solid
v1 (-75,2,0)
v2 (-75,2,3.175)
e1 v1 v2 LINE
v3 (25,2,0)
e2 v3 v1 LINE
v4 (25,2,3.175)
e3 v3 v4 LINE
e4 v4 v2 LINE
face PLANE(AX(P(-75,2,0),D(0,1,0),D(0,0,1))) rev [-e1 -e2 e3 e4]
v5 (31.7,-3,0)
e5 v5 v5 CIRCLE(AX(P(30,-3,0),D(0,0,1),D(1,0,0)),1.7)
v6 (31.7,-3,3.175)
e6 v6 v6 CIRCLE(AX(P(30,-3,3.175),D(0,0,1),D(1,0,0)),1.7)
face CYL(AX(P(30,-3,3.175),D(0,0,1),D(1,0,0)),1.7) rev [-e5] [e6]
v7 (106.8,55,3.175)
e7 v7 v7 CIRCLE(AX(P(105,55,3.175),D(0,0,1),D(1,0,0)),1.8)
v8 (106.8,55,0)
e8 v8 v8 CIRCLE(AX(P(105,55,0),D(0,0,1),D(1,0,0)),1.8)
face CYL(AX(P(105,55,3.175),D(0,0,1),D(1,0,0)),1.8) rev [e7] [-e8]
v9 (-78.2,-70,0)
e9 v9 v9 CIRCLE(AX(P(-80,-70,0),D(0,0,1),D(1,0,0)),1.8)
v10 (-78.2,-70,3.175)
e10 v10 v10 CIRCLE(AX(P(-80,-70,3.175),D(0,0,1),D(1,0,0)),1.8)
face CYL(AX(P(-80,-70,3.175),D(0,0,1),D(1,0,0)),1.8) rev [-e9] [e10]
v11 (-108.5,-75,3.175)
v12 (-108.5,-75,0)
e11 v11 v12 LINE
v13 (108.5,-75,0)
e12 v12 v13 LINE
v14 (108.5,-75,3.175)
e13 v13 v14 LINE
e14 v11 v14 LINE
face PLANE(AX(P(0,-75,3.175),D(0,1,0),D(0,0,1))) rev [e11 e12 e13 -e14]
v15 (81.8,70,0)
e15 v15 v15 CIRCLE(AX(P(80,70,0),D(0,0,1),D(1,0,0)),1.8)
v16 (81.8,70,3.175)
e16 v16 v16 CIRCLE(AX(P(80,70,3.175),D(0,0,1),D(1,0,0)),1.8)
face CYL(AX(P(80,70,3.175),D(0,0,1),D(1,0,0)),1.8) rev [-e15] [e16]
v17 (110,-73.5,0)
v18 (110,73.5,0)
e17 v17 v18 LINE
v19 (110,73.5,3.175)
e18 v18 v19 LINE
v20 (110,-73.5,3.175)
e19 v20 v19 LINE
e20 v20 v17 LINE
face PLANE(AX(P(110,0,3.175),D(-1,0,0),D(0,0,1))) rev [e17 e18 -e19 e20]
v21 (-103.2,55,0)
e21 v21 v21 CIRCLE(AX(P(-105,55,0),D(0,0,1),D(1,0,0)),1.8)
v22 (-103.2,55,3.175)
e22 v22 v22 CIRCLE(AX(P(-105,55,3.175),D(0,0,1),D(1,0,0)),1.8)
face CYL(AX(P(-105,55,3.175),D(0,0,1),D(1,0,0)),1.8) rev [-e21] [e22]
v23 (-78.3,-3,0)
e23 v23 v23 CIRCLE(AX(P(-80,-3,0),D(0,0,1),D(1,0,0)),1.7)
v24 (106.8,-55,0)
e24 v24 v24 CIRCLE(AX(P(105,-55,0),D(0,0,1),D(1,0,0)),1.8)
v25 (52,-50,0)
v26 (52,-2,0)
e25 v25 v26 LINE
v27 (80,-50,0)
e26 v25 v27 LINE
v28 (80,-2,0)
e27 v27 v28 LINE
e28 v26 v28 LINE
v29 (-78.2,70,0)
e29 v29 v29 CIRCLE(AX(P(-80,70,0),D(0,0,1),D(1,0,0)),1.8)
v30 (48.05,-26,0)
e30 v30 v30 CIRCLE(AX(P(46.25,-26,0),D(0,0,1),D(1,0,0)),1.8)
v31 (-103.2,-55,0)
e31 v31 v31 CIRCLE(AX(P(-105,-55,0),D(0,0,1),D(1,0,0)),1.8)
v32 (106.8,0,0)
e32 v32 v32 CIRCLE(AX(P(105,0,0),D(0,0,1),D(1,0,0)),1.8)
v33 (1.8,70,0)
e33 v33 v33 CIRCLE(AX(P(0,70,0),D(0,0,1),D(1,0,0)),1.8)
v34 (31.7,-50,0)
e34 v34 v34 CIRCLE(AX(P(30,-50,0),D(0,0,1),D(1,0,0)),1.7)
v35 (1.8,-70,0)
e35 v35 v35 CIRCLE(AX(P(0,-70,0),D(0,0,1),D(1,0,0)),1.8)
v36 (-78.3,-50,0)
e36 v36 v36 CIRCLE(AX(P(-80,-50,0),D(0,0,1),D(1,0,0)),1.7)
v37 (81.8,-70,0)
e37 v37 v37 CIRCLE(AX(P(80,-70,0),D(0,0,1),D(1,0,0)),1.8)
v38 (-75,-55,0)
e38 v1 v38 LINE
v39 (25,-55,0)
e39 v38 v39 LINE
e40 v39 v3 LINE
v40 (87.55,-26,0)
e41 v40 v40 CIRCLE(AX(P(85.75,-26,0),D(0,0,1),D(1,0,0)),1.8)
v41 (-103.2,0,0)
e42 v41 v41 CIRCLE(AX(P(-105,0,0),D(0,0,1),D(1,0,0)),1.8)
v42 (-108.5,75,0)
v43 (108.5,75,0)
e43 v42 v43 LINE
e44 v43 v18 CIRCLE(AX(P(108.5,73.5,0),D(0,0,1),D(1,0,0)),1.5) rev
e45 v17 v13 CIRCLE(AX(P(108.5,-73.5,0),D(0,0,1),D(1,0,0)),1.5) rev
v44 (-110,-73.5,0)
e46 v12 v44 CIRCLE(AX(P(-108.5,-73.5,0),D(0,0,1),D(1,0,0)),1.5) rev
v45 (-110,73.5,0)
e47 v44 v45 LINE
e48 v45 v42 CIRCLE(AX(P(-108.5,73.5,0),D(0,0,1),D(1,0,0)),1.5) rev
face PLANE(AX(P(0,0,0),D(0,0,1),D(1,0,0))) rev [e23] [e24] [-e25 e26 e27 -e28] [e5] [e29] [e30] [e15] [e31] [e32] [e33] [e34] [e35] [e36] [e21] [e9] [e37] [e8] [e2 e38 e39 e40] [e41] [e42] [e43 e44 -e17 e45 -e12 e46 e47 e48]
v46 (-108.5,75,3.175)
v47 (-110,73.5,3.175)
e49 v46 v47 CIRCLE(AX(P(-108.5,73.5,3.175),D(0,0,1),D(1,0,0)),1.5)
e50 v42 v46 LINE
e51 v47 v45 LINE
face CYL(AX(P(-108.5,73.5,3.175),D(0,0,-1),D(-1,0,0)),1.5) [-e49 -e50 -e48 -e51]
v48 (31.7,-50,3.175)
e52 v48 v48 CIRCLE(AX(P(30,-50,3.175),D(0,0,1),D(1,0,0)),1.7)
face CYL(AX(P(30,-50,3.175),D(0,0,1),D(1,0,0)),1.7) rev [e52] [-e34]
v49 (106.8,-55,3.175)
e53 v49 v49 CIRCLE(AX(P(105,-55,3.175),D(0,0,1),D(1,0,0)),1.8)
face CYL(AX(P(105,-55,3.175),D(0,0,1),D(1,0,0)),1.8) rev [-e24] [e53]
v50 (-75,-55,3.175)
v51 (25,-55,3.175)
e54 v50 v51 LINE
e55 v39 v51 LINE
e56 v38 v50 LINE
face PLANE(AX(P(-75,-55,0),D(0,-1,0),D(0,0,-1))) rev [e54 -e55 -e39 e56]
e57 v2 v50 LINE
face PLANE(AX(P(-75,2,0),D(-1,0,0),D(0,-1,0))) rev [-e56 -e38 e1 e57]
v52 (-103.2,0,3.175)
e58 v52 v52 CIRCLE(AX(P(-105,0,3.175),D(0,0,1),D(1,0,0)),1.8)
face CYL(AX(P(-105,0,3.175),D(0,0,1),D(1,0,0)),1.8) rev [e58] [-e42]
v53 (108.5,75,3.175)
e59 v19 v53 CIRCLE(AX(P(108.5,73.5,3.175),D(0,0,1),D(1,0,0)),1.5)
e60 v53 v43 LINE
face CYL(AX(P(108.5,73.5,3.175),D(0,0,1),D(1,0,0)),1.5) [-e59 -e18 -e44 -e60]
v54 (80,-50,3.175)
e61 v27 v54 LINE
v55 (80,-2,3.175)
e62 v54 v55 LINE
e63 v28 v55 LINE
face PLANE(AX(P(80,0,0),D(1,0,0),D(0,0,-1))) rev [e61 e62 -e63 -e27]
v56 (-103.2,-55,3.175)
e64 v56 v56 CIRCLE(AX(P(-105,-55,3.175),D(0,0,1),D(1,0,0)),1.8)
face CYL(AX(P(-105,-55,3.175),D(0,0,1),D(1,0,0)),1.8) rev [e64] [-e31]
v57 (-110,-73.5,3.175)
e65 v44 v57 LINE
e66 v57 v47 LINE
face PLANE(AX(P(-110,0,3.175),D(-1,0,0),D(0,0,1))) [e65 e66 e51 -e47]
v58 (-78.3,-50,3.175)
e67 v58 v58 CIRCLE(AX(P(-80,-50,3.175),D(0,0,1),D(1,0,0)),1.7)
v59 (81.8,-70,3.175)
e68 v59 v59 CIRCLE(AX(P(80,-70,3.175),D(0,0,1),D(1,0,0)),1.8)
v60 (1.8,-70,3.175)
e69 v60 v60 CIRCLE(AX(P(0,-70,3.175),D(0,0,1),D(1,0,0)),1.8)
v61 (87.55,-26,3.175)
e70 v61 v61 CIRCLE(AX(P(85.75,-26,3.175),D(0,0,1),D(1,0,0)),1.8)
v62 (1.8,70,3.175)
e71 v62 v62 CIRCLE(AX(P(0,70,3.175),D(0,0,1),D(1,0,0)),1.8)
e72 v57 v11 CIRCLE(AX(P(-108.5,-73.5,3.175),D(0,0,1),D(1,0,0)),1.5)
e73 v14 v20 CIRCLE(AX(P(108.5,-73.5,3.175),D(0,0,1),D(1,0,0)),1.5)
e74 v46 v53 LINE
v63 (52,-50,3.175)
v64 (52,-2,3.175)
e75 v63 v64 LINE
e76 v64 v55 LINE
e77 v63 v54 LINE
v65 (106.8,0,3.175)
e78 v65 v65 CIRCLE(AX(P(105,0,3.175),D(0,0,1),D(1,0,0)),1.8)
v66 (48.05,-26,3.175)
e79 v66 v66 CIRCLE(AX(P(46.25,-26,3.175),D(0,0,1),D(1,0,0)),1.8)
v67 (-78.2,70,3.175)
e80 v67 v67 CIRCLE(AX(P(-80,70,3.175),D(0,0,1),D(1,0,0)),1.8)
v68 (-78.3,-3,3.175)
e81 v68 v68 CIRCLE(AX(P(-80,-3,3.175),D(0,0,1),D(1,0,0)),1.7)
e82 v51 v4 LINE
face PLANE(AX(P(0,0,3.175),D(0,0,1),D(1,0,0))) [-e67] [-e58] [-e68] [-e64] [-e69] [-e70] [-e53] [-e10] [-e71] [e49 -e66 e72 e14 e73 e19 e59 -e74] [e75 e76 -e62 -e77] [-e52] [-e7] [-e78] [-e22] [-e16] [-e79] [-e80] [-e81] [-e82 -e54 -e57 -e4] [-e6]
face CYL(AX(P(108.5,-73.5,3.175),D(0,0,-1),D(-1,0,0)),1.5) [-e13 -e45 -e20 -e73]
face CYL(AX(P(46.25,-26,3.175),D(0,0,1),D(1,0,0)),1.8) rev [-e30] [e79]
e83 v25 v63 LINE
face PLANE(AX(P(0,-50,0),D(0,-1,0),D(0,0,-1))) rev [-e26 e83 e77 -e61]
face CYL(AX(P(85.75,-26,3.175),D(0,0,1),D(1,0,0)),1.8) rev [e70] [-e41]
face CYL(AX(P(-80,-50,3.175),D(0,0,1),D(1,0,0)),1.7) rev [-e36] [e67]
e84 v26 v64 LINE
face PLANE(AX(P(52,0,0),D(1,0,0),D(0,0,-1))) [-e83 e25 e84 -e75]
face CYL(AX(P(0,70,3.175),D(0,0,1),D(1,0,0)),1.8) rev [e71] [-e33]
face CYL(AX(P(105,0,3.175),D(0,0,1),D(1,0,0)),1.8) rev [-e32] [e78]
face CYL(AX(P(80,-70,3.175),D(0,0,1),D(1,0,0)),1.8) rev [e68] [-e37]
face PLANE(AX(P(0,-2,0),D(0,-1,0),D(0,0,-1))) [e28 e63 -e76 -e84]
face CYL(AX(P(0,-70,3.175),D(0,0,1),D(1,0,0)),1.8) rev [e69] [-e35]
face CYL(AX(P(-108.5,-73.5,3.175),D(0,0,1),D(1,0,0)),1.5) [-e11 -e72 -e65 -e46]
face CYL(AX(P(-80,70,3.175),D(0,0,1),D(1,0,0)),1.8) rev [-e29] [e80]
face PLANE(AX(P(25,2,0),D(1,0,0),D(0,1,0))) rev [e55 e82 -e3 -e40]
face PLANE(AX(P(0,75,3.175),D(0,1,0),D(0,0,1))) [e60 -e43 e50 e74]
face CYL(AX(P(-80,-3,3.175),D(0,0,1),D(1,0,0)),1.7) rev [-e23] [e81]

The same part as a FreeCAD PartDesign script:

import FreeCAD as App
import Part
import Sketcher

V = App.Vector


def edges_at(feature, points):
    """Names of the edges that pass closest to the given points."""
    edges = feature.Shape.Edges
    near = lambda p: min(range(len(edges)), key=lambda i: edges[i].distToShape(Part.Vertex(*p))[0])
    return sorted({f"Edge{near(p) + 1}" for p in points})

doc = App.newDocument("Part")
body = doc.addObject("PartDesign::Body", "Body")

# Sketch on XY plane
sketch1 = body.newObject("Sketcher::SketchObject", "Sketch")
sketch1.AttachmentSupport = (doc.getObject("XY_Plane"), [""])
sketch1.MapMode = "FlatFace"
sketch1.addGeometry(Part.LineSegment(V(-110, 75, 0), V(-110, -75, 0)), False)
sketch1.addGeometry(Part.LineSegment(V(-110, -75, 0), V(110, -75, 0)), False)
sketch1.addGeometry(Part.LineSegment(V(110, -75, 0), V(110, 75, 0)), False)
sketch1.addGeometry(Part.LineSegment(V(110, 75, 0), V(-110, 75, 0)), False)
sketch1.addConstraint(Sketcher.Constraint("Coincident", 0, 2, 1, 1))
sketch1.addConstraint(Sketcher.Constraint("Coincident", 1, 2, 2, 1))
sketch1.addConstraint(Sketcher.Constraint("Coincident", 2, 2, 3, 1))
sketch1.addConstraint(Sketcher.Constraint("Coincident", 3, 2, 0, 1))
sketch1.addConstraint(Sketcher.Constraint("Vertical", 0))
sketch1.addConstraint(Sketcher.Constraint("Horizontal", 1))
sketch1.addConstraint(Sketcher.Constraint("Vertical", 2))
sketch1.addConstraint(Sketcher.Constraint("Horizontal", 3))
sketch1.addConstraint(Sketcher.Constraint("Symmetric", 0, 2, 2, 2, -1, 1))
sketch1.addConstraint(Sketcher.Constraint("DistanceX", 1, 1, 1, 2, 220.0))
sketch1.addConstraint(Sketcher.Constraint("DistanceY", 0, 2, 0, 1, 150.0))
pad1 = body.newObject("PartDesign::Pad", "Pad")
pad1.Profile = sketch1
pad1.Length = 3.175

# Sketch on XY plane
sketch2 = body.newObject("Sketcher::SketchObject", "Sketch001")
sketch2.AttachmentSupport = (doc.getObject("XY_Plane"), [""])
sketch2.MapMode = "FlatFace"
sketch2.AttachmentOffset = App.Placement(V(0, 0, 3.175), App.Rotation())
sketch2.addGeometry(Part.Circle(V(0, 0, 0), V(0, 0, 1), 1.8), False)
sketch2.addGeometry(Part.Circle(V(-80, 70, 0), V(0, 0, 1), 1.8), False)
sketch2.addGeometry(Part.Circle(V(80, 70, 0), V(0, 0, 1), 1.8), False)
sketch2.addGeometry(Part.Circle(V(0, 70, 0), V(0, 0, 1), 1.8), False)
sketch2.addGeometry(Part.Circle(V(-105, 55, 0), V(0, 0, 1), 1.8), False)
sketch2.addGeometry(Part.Circle(V(-105, 0, 0), V(0, 0, 1), 1.8), False)
sketch2.addGeometry(Part.Circle(V(-105, -55, 0), V(0, 0, 1), 1.8), False)
sketch2.addGeometry(Part.Circle(V(-80, -70, 0), V(0, 0, 1), 1.8), False)
sketch2.addGeometry(Part.Circle(V(0, -70, 0), V(0, 0, 1), 1.8), False)
sketch2.addGeometry(Part.Circle(V(80, -70, 0), V(0, 0, 1), 1.8), False)
sketch2.addGeometry(Part.Circle(V(105, -55, 0), V(0, 0, 1), 1.8), False)
sketch2.addGeometry(Part.Circle(V(105, 0, 0), V(0, 0, 1), 1.8), False)
sketch2.addGeometry(Part.Circle(V(105, 55, 0), V(0, 0, 1), 1.8), False)
sketch2.addConstraint(Sketcher.Constraint("Coincident", 0, 3, -1, 1))
sketch2.addConstraint(Sketcher.Constraint("Equal", 0, 1))
sketch2.addConstraint(Sketcher.Constraint("Equal", 1, 2))
sketch2.addConstraint(Sketcher.Constraint("Equal", 2, 3))
sketch2.addConstraint(Sketcher.Constraint("Equal", 3, 4))
sketch2.addConstraint(Sketcher.Constraint("Equal", 4, 5))
sketch2.addConstraint(Sketcher.Constraint("Equal", 5, 6))
sketch2.addConstraint(Sketcher.Constraint("Equal", 6, 7))
sketch2.addConstraint(Sketcher.Constraint("Equal", 7, 8))
sketch2.addConstraint(Sketcher.Constraint("Equal", 8, 9))
sketch2.addConstraint(Sketcher.Constraint("Equal", 9, 10))
sketch2.addConstraint(Sketcher.Constraint("Equal", 10, 11))
sketch2.addConstraint(Sketcher.Constraint("Equal", 11, 12))
sketch2.addConstraint(Sketcher.Constraint("Symmetric", 2, 3, 7, 3, -1, 1))
sketch2.addConstraint(Sketcher.Constraint("Symmetric", 3, 3, 8, 3, -1, 1))
sketch2.addConstraint(Sketcher.Constraint("Symmetric", 1, 3, 9, 3, -1, 1))
sketch2.addConstraint(Sketcher.Constraint("Symmetric", 4, 3, 10, 3, -1, 1))
sketch2.addConstraint(Sketcher.Constraint("Symmetric", 5, 3, 11, 3, -1, 1))
sketch2.addConstraint(Sketcher.Constraint("Symmetric", 6, 3, 12, 3, -1, 1))
sketch2.addConstraint(Sketcher.Constraint("Symmetric", 1, 3, 2, 3, -2))
sketch2.addConstraint(Sketcher.Constraint("Symmetric", 6, 3, 10, 3, -2))
sketch2.addConstraint(Sketcher.Constraint("PointOnObject", 3, 3, -2))
sketch2.addConstraint(Sketcher.Constraint("PointOnObject", 5, 3, -1))
sketch2.addConstraint(Sketcher.Constraint("Horizontal", 2, 3, 3, 3))
sketch2.addConstraint(Sketcher.Constraint("Vertical", 4, 3, 5, 3))
sketch2.addConstraint(Sketcher.Constraint("Diameter", 0, 3.6))
sketch2.addConstraint(Sketcher.Constraint("DistanceX", 1, 3, -1, 1, 80.0))
sketch2.addConstraint(Sketcher.Constraint("DistanceY", -1, 1, 1, 3, 70.0))
sketch2.addConstraint(Sketcher.Constraint("DistanceX", 4, 3, -1, 1, 105.0))
sketch2.addConstraint(Sketcher.Constraint("DistanceY", -1, 1, 4, 3, 55.0))
doc.recompute()
hole = body.newObject("PartDesign::Hole", "Hole")
hole.Profile = sketch2
hole.ThreadType = "None"
hole.Diameter = 3.6
hole.DepthType = "ThroughAll"

# Sketch on XY plane
sketch3 = body.newObject("Sketcher::SketchObject", "Sketch002")
sketch3.AttachmentSupport = (doc.getObject("XY_Plane"), [""])
sketch3.MapMode = "FlatFace"
sketch3.AttachmentOffset = App.Placement(V(0, 0, 3.175), App.Rotation())
sketch3.addGeometry(Part.LineSegment(V(-5, 5, 0), V(-5, -5, 0)), False)
sketch3.addGeometry(Part.LineSegment(V(-5, -5, 0), V(5, -5, 0)), False)
sketch3.addGeometry(Part.LineSegment(V(5, -5, 0), V(5, 5, 0)), False)
sketch3.addGeometry(Part.LineSegment(V(5, 5, 0), V(-5, 5, 0)), False)
sketch3.addConstraint(Sketcher.Constraint("Coincident", 0, 2, 1, 1))
sketch3.addConstraint(Sketcher.Constraint("Coincident", 1, 2, 2, 1))
sketch3.addConstraint(Sketcher.Constraint("Coincident", 2, 2, 3, 1))
sketch3.addConstraint(Sketcher.Constraint("Coincident", 3, 2, 0, 1))
sketch3.addConstraint(Sketcher.Constraint("Vertical", 0))
sketch3.addConstraint(Sketcher.Constraint("Horizontal", 1))
sketch3.addConstraint(Sketcher.Constraint("Vertical", 2))
sketch3.addConstraint(Sketcher.Constraint("Horizontal", 3))
sketch3.addConstraint(Sketcher.Constraint("Symmetric", 0, 2, 2, 2, -1, 1))
sketch3.addConstraint(Sketcher.Constraint("Equal", 3, 0))
sketch3.addConstraint(Sketcher.Constraint("DistanceX", 1, 1, 1, 2, 10.0))
pad2 = body.newObject("PartDesign::Pad", "Pad001")
pad2.Profile = sketch3
pad2.Length = 3.175
pad2.Reversed = True
doc.recompute()

fillet = body.newObject("PartDesign::Fillet", "Fillet")
fillet.Base = (pad2, edges_at(pad2, [
    (-110, -75, 1.587),
    (-110, 75, 1.587),
    (110, 75, 1.587),
    (110, -75, 1.587),
]))
fillet.Radius = 1.5

# Sketch on XY plane
sketch4 = body.newObject("Sketcher::SketchObject", "Sketch003")
sketch4.AttachmentSupport = (doc.getObject("XY_Plane"), [""])
sketch4.MapMode = "FlatFace"
sketch4.AttachmentOffset = App.Placement(V(0, 0, 3.175), App.Rotation())
sketch4.addGeometry(Part.LineSegment(V(52, -2, 0), V(52, -50, 0)), False)
sketch4.addGeometry(Part.LineSegment(V(52, -50, 0), V(80, -50, 0)), False)
sketch4.addGeometry(Part.LineSegment(V(80, -50, 0), V(80, -2, 0)), False)
sketch4.addGeometry(Part.LineSegment(V(80, -2, 0), V(52, -2, 0)), False)
sketch4.addConstraint(Sketcher.Constraint("Coincident", 0, 2, 1, 1))
sketch4.addConstraint(Sketcher.Constraint("Coincident", 1, 2, 2, 1))
sketch4.addConstraint(Sketcher.Constraint("Coincident", 2, 2, 3, 1))
sketch4.addConstraint(Sketcher.Constraint("Coincident", 3, 2, 0, 1))
sketch4.addConstraint(Sketcher.Constraint("Vertical", 0))
sketch4.addConstraint(Sketcher.Constraint("Horizontal", 1))
sketch4.addConstraint(Sketcher.Constraint("Vertical", 2))
sketch4.addConstraint(Sketcher.Constraint("Horizontal", 3))
sketch4.addConstraint(Sketcher.Constraint("DistanceX", 1, 1, 1, 2, 28.0))
sketch4.addConstraint(Sketcher.Constraint("DistanceY", 0, 2, 0, 1, 48.0))
sketch4.addConstraint(Sketcher.Constraint("DistanceX", -1, 1, 0, 2, 52.0))
sketch4.addConstraint(Sketcher.Constraint("DistanceY", 0, 2, -1, 1, 50.0))
pocket1 = body.newObject("PartDesign::Pocket", "Pocket")
pocket1.Profile = sketch4
pocket1.Type = "ThroughAll"

# Sketch on XY plane
sketch5 = body.newObject("Sketcher::SketchObject", "Sketch004")
sketch5.AttachmentSupport = (doc.getObject("XY_Plane"), [""])
sketch5.MapMode = "FlatFace"
sketch5.AttachmentOffset = App.Placement(V(0, 0, 3.175), App.Rotation())
sketch5.addGeometry(Part.Circle(V(46.25, -26, 0), V(0, 0, 1), 1.8), False)
sketch5.addGeometry(Part.Circle(V(85.75, -26, 0), V(0, 0, 1), 1.8), False)
sketch5.addConstraint(Sketcher.Constraint("Equal", 0, 1))
sketch5.addConstraint(Sketcher.Constraint("Horizontal", 0, 3, 1, 3))
sketch5.addConstraint(Sketcher.Constraint("Diameter", 0, 3.6))
sketch5.addConstraint(Sketcher.Constraint("DistanceY", 0, 3, -1, 1, 26.0))
sketch5.addConstraint(Sketcher.Constraint("DistanceX", 0, 3, 1, 3, 39.5))
sketch5.addConstraint(Sketcher.Constraint("DistanceX", -1, 1, 0, 3, 46.25))
doc.recompute()
hole2 = body.newObject("PartDesign::Hole", "Hole001")
hole2.Profile = sketch5
hole2.ThreadType = "None"
hole2.Diameter = 3.6
hole2.DepthType = "ThroughAll"

# Sketch on XY plane
sketch6 = body.newObject("Sketcher::SketchObject", "Sketch005")
sketch6.AttachmentSupport = (doc.getObject("XY_Plane"), [""])
sketch6.MapMode = "FlatFace"
sketch6.AttachmentOffset = App.Placement(V(0, 0, 3.175), App.Rotation())
sketch6.addGeometry(Part.LineSegment(V(-75, 2, 0), V(-75, -55, 0)), False)
sketch6.addGeometry(Part.LineSegment(V(-75, -55, 0), V(25, -55, 0)), False)
sketch6.addGeometry(Part.LineSegment(V(25, -55, 0), V(25, 2, 0)), False)
sketch6.addGeometry(Part.LineSegment(V(25, 2, 0), V(-75, 2, 0)), False)
sketch6.addConstraint(Sketcher.Constraint("Coincident", 0, 2, 1, 1))
sketch6.addConstraint(Sketcher.Constraint("Coincident", 1, 2, 2, 1))
sketch6.addConstraint(Sketcher.Constraint("Coincident", 2, 2, 3, 1))
sketch6.addConstraint(Sketcher.Constraint("Coincident", 3, 2, 0, 1))
sketch6.addConstraint(Sketcher.Constraint("Vertical", 0))
sketch6.addConstraint(Sketcher.Constraint("Horizontal", 1))
sketch6.addConstraint(Sketcher.Constraint("Vertical", 2))
sketch6.addConstraint(Sketcher.Constraint("Horizontal", 3))
sketch6.addConstraint(Sketcher.Constraint("DistanceX", 1, 1, 1, 2, 100.0))
sketch6.addConstraint(Sketcher.Constraint("DistanceY", 0, 2, 0, 1, 57.0))
sketch6.addConstraint(Sketcher.Constraint("DistanceX", 0, 2, -1, 1, 75.0))
sketch6.addConstraint(Sketcher.Constraint("DistanceY", 0, 2, -1, 1, 55.0))
pocket2 = body.newObject("PartDesign::Pocket", "Pocket001")
pocket2.Profile = sketch6
pocket2.Type = "ThroughAll"

# Sketch on XY plane
sketch7 = body.newObject("Sketcher::SketchObject", "Sketch006")
sketch7.AttachmentSupport = (doc.getObject("XY_Plane"), [""])
sketch7.MapMode = "FlatFace"
sketch7.AttachmentOffset = App.Placement(V(0, 0, 3.175), App.Rotation())
sketch7.addGeometry(Part.Circle(V(-80, -3, 0), V(0, 0, 1), 1.7), False)
sketch7.addGeometry(Part.Circle(V(-80, -50, 0), V(0, 0, 1), 1.7), False)
sketch7.addGeometry(Part.Circle(V(30, -50, 0), V(0, 0, 1), 1.7), False)
sketch7.addGeometry(Part.Circle(V(30, -3, 0), V(0, 0, 1), 1.7), False)
sketch7.addConstraint(Sketcher.Constraint("Equal", 0, 1))
sketch7.addConstraint(Sketcher.Constraint("Equal", 1, 2))
sketch7.addConstraint(Sketcher.Constraint("Equal", 2, 3))
sketch7.addConstraint(Sketcher.Constraint("Horizontal", 1, 3, 2, 3))
sketch7.addConstraint(Sketcher.Constraint("Horizontal", 0, 3, 3, 3))
sketch7.addConstraint(Sketcher.Constraint("Vertical", 0, 3, 1, 3))
sketch7.addConstraint(Sketcher.Constraint("Vertical", 2, 3, 3, 3))
sketch7.addConstraint(Sketcher.Constraint("Diameter", 0, 3.4))
sketch7.addConstraint(Sketcher.Constraint("DistanceX", 0, 3, -1, 1, 80.0))
sketch7.addConstraint(Sketcher.Constraint("DistanceY", 0, 3, -1, 1, 3.0))
sketch7.addConstraint(Sketcher.Constraint("DistanceY", 1, 3, -1, 1, 50.0))
sketch7.addConstraint(Sketcher.Constraint("DistanceX", -1, 1, 2, 3, 30.0))
doc.recompute()
hole3 = body.newObject("PartDesign::Hole", "Hole002")
hole3.Profile = sketch7
hole3.ThreadType = "None"
hole3.Diameter = 3.4
hole3.DepthType = "ThroughAll"

doc.recompute()
